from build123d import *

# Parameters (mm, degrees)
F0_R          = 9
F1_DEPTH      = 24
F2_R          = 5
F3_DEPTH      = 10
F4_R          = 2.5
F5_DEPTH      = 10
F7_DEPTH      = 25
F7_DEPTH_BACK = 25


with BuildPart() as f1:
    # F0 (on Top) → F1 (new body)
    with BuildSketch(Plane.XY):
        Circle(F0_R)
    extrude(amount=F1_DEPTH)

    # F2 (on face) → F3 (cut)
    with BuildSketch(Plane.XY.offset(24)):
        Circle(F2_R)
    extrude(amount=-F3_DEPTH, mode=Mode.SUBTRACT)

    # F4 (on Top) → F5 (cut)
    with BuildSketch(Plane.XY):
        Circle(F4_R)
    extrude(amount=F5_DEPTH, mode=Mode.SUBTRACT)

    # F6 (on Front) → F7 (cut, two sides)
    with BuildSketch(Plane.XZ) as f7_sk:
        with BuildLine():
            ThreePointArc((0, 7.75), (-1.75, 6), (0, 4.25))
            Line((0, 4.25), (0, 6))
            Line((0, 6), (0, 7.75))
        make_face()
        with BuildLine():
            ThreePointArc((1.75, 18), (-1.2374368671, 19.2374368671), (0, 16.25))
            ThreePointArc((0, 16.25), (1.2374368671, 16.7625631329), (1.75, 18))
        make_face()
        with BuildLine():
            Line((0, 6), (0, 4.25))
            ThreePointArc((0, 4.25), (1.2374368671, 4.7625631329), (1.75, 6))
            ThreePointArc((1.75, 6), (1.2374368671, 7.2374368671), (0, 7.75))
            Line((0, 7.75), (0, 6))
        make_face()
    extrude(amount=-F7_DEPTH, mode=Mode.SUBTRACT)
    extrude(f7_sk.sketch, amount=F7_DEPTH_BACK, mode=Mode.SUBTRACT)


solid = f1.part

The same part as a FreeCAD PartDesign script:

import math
import FreeCAD as App
import Part
import Sketcher

doc = App.newDocument("Part")
body = doc.addObject("PartDesign::Body", "Body")

# Sketch on XY plane
sketch1 = body.newObject("Sketcher::SketchObject", "Sketch")
sketch1.AttachmentSupport = (doc.getObject("XY_Plane"), [""])
sketch1.MapMode = "FlatFace"
sketch1.addGeometry(Part.Circle(App.Vector(0, 0, 0), App.Vector(0, 0, 1), 9), False)
sketch1.addConstraint([
    Sketcher.Constraint("Coincident", 0, 3, -1, 1),
    Sketcher.Constraint("Diameter", 0, 18.0),
])
pad1 = body.newObject("PartDesign::Pad", "Pad")
pad1.Profile = sketch1
pad1.Length = 24

# Sketch on XY plane
sketch2 = body.newObject("Sketcher::SketchObject", "Sketch001")
sketch2.AttachmentSupport = (doc.getObject("XY_Plane"), [""])
sketch2.MapMode = "FlatFace"
sketch2.AttachmentOffset = App.Placement(App.Vector(0, 0, 24), App.Rotation())
sketch2.addGeometry(Part.Circle(App.Vector(0, 0, 0), App.Vector(0, 0, 1), 5), False)
sketch2.addConstraint([
    Sketcher.Constraint("Coincident", 0, 3, -1, 1),
    Sketcher.Constraint("Diameter", 0, 10.0),
])
pocket1 = body.newObject("PartDesign::Pocket", "Pocket")
pocket1.Profile = sketch2
pocket1.Length = 10

# Sketch on XY plane
sketch3 = body.newObject("Sketcher::SketchObject", "Sketch002")
sketch3.AttachmentSupport = (doc.getObject("XY_Plane"), [""])
sketch3.MapMode = "FlatFace"
sketch3.addGeometry(Part.Circle(App.Vector(0, 0, 0), App.Vector(0, 0, 1), 2.5), False)
sketch3.addConstraint([
    Sketcher.Constraint("Coincident", 0, 3, -1, 1),
    Sketcher.Constraint("Diameter", 0, 5.0),
])
pocket2 = body.newObject("PartDesign::Pocket", "Pocket001")
pocket2.Profile = sketch3
pocket2.Length = 10
pocket2.Reversed = True

# Sketch on XZ plane
sketch4 = body.newObject("Sketcher::SketchObject", "Sketch003")
sketch4.AttachmentSupport = (doc.getObject("XZ_Plane"), [""])
sketch4.MapMode = "FlatFace"
sketch4.addGeometry([
    Part.ArcOfCircle(Part.Circle(App.Vector(0, 6, 0), App.Vector(0, 0, 1), 1.8), math.radians(90), math.radians(270)),  # 0
    Part.ArcOfCircle(Part.Circle(App.Vector(0, 6, 0), App.Vector(0, 0, 1), 1.8), math.radians(-90), math.radians(0)),  # 1
    Part.ArcOfCircle(Part.Circle(App.Vector(0, 6, 0), App.Vector(0, 0, 1), 1.8), math.radians(0), math.radians(90)),  # 2
    Part.ArcOfCircle(Part.Circle(App.Vector(0, 18, 0), App.Vector(0, 0, 1), 1.8), math.radians(0), math.radians(270)),  # 3
    Part.ArcOfCircle(Part.Circle(App.Vector(0, 18, 0), App.Vector(0, 0, 1), 1.8), math.radians(-90), math.radians(0)),  # 4
], False)
sketch4.addConstraint([
    Sketcher.Constraint("Tangent", 0, 2, 1, 1),
    Sketcher.Constraint("Tangent", 1, 2, 2, 1),
    Sketcher.Constraint("Tangent", 2, 2, 0, 1),
    Sketcher.Constraint("Tangent", 3, 1, 4, 2),
    Sketcher.Constraint("Coincident", 4, 1, 3, 2),
    Sketcher.Constraint("Equal", 2, 3),
    Sketcher.Constraint("PointOnObject", 0, 3, -2),
    Sketcher.Constraint("PointOnObject", 3, 3, -2),
    Sketcher.Constraint("PointOnObject", 0, 2, -2),
    Sketcher.Constraint("PointOnObject", 2, 2, -2),
    Sketcher.Constraint("PointOnObject", 4, 1, -2),
    Sketcher.Constraint("Horizontal", 2, 3, 1, 2),
    Sketcher.Constraint("Horizontal", 4, 3, 3, 1),
    Sketcher.Constraint("Radius", 0, 1.75),
    Sketcher.Constraint("DistanceY", -1, 1, 0, 3, 6.0),
    Sketcher.Constraint("DistanceY", -1, 1, 3, 3, 18.0),
])
pocket3 = body.newObject("PartDesign::Pocket", "Pocket002")
pocket3.Profile = sketch4
pocket3.Type = "ThroughAll"
pocket3.Midplane = True

doc.recompute()
